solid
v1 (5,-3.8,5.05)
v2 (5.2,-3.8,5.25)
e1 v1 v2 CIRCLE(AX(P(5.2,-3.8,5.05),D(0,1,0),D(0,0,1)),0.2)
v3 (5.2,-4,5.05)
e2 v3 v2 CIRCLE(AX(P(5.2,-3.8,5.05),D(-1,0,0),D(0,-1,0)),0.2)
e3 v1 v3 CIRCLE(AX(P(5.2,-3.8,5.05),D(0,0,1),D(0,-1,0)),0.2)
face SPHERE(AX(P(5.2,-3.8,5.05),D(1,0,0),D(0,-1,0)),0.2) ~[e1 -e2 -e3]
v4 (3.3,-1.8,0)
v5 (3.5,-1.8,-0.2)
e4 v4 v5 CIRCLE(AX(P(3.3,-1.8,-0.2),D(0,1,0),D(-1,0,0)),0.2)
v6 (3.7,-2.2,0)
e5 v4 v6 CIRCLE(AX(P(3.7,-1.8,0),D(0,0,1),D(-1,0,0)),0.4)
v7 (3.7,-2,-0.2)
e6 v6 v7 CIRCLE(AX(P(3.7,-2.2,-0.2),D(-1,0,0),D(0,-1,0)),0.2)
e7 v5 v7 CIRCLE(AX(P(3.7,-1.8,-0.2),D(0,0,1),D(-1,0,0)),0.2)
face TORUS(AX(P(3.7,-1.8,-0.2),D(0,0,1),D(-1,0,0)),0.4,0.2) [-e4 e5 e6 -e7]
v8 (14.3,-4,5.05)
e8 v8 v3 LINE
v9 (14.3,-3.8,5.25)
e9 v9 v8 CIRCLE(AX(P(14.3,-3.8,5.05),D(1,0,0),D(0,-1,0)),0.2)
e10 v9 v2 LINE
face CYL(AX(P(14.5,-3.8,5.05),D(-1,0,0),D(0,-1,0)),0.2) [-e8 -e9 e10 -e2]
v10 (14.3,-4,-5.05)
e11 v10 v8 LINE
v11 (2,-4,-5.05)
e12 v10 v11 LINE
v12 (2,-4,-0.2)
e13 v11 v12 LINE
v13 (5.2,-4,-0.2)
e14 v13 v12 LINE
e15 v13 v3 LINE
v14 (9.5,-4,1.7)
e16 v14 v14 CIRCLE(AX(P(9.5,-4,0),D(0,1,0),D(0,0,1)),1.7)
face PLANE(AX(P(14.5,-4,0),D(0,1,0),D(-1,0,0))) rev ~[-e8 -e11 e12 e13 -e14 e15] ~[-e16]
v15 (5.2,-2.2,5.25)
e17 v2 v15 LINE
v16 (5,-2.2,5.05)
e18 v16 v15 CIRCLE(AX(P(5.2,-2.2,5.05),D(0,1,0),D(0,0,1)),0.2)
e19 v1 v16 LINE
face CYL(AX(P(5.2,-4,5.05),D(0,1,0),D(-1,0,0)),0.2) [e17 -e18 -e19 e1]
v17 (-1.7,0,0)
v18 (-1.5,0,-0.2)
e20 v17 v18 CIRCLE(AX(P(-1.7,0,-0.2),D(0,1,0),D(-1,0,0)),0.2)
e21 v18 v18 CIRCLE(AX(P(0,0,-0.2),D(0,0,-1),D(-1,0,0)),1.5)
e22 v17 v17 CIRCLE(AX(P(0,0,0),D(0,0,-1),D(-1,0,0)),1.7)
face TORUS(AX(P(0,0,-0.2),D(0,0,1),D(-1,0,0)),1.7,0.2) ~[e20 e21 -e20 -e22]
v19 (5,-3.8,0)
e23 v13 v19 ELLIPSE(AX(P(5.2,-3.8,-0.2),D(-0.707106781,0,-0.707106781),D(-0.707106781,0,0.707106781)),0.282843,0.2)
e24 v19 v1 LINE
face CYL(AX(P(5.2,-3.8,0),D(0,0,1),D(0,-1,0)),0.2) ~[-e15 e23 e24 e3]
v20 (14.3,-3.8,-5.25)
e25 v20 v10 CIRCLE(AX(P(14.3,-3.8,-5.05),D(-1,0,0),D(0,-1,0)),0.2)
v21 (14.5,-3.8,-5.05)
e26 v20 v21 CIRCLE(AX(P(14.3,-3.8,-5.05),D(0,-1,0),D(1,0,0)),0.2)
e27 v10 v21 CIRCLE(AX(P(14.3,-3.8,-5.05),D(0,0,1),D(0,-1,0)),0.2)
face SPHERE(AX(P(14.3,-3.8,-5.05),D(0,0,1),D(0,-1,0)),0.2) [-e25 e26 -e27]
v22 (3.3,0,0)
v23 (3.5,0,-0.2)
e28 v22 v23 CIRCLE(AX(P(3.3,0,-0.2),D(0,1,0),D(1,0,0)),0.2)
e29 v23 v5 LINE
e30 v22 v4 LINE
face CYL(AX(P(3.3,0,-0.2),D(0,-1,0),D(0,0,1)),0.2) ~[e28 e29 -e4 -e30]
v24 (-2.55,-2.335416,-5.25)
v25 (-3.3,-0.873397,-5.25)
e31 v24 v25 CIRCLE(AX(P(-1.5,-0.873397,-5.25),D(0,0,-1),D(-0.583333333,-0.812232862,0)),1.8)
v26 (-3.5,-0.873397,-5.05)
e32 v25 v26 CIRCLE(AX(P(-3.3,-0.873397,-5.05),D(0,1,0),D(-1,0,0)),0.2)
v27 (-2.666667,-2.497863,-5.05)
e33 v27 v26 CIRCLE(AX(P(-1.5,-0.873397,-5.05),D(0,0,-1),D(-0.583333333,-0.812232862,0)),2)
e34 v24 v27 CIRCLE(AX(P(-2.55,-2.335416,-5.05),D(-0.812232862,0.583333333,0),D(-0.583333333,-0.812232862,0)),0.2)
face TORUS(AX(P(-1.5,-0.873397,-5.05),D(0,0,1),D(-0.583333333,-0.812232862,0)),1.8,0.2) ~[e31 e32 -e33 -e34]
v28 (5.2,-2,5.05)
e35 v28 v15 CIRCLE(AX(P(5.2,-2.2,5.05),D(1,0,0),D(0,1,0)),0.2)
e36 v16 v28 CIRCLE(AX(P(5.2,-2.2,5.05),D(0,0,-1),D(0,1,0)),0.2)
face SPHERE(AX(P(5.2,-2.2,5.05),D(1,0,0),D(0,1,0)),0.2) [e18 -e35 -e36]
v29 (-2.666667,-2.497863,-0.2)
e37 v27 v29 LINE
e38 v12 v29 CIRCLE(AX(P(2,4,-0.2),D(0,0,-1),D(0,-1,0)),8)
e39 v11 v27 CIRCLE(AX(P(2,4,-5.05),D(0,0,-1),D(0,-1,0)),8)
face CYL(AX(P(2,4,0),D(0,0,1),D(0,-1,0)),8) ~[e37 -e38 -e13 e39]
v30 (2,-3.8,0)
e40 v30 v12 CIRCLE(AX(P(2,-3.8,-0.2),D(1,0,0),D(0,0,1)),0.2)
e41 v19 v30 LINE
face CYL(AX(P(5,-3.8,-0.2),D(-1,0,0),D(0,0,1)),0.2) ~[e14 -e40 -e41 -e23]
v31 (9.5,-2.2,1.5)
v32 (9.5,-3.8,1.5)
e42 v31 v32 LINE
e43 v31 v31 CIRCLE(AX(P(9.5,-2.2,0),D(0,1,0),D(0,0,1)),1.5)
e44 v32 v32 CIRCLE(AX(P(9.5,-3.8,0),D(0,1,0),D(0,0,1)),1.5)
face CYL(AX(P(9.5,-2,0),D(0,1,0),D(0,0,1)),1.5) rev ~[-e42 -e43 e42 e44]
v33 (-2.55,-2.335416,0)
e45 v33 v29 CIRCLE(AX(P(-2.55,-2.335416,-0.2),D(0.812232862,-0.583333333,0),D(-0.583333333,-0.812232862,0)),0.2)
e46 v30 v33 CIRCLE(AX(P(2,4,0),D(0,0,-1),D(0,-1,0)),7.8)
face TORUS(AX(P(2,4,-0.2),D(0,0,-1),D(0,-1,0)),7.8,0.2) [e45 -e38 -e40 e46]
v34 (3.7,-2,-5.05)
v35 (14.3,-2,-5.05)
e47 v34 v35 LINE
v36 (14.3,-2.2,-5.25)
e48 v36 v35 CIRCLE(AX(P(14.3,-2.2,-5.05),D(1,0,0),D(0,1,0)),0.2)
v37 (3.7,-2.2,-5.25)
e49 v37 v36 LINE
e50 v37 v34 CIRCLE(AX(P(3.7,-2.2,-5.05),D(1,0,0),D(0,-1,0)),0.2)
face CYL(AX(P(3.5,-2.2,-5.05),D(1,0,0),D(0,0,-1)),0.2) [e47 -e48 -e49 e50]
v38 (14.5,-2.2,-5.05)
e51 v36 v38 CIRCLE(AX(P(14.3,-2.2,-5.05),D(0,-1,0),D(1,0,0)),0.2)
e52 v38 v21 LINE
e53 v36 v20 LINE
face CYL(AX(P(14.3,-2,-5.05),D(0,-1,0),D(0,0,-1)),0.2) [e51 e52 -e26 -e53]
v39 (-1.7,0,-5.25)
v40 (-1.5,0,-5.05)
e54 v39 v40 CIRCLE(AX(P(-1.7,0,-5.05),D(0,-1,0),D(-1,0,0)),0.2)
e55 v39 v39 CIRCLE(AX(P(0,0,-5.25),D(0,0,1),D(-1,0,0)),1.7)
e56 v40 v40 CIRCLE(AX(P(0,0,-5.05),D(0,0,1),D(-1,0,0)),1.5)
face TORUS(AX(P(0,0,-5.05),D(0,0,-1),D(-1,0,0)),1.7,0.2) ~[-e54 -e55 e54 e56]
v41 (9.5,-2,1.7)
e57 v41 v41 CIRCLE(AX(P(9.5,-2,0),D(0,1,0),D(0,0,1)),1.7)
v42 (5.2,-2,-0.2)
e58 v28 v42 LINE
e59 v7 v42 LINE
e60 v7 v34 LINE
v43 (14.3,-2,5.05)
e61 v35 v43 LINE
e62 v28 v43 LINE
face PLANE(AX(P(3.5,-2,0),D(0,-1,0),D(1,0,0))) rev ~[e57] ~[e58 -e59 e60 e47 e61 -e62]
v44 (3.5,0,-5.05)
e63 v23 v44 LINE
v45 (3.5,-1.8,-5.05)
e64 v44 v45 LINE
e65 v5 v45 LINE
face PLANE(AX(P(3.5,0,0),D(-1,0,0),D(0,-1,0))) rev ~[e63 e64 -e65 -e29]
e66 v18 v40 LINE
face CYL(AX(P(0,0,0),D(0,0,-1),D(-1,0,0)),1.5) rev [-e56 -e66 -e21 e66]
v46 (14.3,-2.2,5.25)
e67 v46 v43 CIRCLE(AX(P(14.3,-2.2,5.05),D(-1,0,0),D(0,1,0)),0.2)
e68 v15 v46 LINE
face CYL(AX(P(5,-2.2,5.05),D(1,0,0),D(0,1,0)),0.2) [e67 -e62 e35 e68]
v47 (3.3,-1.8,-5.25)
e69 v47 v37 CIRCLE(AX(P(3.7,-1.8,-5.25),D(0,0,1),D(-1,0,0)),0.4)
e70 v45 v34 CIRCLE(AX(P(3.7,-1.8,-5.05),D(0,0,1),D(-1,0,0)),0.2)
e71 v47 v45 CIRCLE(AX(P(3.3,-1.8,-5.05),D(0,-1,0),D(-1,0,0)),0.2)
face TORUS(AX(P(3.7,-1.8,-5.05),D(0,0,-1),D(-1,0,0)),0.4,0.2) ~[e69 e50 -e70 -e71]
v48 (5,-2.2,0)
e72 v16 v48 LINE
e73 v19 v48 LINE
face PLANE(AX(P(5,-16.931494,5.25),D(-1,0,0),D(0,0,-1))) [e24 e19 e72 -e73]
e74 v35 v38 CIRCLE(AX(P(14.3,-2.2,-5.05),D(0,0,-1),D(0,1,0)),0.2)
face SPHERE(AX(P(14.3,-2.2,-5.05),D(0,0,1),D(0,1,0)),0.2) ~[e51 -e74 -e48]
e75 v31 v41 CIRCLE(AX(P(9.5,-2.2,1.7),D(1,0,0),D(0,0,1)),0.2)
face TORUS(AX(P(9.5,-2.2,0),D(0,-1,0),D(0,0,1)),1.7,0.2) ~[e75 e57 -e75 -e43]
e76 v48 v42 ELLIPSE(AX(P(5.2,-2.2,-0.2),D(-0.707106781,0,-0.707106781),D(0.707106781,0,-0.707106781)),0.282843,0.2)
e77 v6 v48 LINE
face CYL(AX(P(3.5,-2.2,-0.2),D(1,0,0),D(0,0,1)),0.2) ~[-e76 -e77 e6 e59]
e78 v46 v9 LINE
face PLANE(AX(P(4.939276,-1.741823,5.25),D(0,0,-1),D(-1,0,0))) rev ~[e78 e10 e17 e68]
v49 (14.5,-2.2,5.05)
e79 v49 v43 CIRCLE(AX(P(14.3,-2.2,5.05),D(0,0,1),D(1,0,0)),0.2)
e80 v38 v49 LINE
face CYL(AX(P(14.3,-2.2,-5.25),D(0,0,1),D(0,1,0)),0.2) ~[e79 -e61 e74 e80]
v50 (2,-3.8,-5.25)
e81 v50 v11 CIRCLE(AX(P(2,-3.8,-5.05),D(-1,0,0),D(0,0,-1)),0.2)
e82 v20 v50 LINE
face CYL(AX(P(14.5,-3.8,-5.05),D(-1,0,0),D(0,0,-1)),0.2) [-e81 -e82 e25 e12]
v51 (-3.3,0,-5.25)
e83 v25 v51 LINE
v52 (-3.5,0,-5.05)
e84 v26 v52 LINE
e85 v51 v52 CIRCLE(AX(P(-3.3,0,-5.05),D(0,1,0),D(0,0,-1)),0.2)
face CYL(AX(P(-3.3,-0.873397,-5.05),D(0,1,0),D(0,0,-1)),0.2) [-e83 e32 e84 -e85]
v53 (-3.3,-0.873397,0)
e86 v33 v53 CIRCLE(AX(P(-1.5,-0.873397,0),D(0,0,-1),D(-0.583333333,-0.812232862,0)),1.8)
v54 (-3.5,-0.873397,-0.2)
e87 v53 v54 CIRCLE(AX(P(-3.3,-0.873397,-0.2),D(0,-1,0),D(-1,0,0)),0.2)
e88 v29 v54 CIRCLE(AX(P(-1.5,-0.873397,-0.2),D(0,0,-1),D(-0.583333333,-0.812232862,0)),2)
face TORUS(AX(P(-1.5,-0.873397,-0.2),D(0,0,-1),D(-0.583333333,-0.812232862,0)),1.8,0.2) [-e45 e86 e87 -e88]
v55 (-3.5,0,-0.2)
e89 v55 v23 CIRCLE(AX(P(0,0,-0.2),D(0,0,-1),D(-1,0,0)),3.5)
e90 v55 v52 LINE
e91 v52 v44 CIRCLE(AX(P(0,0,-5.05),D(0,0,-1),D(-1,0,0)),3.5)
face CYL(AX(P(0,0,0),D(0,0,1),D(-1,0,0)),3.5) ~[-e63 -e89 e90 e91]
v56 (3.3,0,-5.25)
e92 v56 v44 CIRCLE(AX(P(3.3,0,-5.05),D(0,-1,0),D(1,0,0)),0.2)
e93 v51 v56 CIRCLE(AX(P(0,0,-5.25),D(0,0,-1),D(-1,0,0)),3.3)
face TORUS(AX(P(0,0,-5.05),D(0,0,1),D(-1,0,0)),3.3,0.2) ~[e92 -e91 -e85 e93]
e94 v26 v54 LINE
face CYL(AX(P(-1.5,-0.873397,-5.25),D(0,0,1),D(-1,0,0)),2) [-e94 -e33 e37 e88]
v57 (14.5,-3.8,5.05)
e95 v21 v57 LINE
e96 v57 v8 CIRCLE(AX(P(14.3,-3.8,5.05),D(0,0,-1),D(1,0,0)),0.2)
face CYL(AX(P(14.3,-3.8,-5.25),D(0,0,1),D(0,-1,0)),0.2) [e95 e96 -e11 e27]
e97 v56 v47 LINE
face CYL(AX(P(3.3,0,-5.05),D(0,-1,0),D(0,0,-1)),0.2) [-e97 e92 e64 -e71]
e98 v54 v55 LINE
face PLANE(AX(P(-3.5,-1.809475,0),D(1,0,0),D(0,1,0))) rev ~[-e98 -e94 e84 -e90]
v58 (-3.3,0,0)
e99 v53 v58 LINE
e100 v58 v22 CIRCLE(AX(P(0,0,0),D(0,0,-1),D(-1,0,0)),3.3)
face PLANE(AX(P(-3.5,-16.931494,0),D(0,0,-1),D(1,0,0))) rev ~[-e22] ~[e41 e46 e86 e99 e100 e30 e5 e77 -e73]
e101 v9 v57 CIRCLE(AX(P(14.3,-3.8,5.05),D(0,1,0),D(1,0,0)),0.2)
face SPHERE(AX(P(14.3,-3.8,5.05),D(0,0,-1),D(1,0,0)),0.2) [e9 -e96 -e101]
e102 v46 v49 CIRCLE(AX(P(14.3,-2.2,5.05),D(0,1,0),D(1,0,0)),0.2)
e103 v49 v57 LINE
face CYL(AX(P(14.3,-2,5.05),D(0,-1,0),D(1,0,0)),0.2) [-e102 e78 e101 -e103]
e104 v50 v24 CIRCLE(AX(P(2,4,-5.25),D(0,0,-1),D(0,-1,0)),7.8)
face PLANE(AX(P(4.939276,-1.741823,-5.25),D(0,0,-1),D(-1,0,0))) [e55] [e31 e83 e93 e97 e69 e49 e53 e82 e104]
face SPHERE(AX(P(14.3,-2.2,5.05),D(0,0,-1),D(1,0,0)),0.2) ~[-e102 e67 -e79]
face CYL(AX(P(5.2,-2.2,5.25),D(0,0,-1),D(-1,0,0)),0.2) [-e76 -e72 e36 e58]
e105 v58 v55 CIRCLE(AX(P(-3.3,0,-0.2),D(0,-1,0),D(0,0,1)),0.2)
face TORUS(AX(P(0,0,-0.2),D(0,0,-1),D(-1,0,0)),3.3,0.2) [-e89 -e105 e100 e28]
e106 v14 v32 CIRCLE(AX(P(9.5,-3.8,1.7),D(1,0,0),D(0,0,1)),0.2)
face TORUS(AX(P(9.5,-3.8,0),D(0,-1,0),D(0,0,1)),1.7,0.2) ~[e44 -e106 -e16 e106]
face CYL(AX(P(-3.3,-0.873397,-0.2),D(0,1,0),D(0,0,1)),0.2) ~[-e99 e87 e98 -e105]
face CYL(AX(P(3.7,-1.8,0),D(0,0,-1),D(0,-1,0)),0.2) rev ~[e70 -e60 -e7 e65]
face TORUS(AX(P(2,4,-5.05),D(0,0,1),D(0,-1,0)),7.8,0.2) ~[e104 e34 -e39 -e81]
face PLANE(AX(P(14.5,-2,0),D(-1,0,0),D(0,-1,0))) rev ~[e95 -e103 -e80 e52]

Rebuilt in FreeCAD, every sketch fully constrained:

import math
import FreeCAD as App
import Part
import Sketcher


def edges_at(feature, points):
    """Names of the edges that pass closest to the given points."""
    edges = feature.Shape.Edges
    near = lambda p: min(range(len(edges)), key=lambda i: edges[i].distToShape(Part.Vertex(*p))[0])
    return sorted({f"Edge{near(p) + 1}" for p in points})


def add_polygon(sketch, points):
    """Adds a closed chain of lines whose ends are joined by coincident constraints."""
    first, n = sketch.GeometryCount, len(points)
    for a, b in zip(points, points[1:] + points[:1]):
        sketch.addGeometry(Part.LineSegment(App.Vector(*a, 0), App.Vector(*b, 0)), False)
    for i in range(n):
        sketch.addConstraint(Sketcher.Constraint("Coincident", first + i, 2, first + (i + 1) % n, 1))

doc = App.newDocument("Part")
params = doc.addObject("Spreadsheet::Sheet", "Params")
for row, (alias, value) in enumerate([
    ("sketch1_diameter", "3 mm"),
    ("sketch1_radius", "8 mm"),
    ("sketch1_radius2", "3.5 mm"),
    ("sketch1_width", "11 mm"),
    ("sketch1_height", "2 mm"),
    ("pad1_length", "10.5 mm"),
    ("sketch2_width", "8.5 mm"),
    ("sketch2_height", "5.25 mm"),
    ("sketch3_diameter", "3 mm"),
    ("fillet_radius", "2 mm"),
    ("fillet2_radius", "0.2 mm"),
    ("fillet3_radius", "0.2 mm"),
], start=1):
    params.set(f"A{row}", alias)
    params.set(f"B{row}", "=" + value)
    params.setAlias(f"B{row}", alias)

body = doc.addObject("PartDesign::Body", "Body")

# Sketch on XY plane
sketch1 = body.newObject("Sketcher::SketchObject", "Sketch")
sketch1.AttachmentSupport = (doc.getObject("XY_Plane"), [""])
sketch1.MapMode = "FlatFace"
sketch1.addGeometry(Part.LineSegment(App.Vector(-3.5, 0, 0), App.Vector(-3.5, -1.809475, 0)), False)
sketch1.addGeometry(Part.ArcOfCircle(Part.Circle(App.Vector(2, 4, 0), App.Vector(0, 0, 1), 8), math.radians(-133.432537), math.radians(-90)), False)
sketch1.addGeometry(Part.LineSegment(App.Vector(2, -4, 0), App.Vector(14.5, -4, 0)), False)
sketch1.addGeometry(Part.LineSegment(App.Vector(14.5, -4, 0), App.Vector(14.5, -2, 0)), False)
sketch1.addGeometry(Part.LineSegment(App.Vector(14.5, -2, 0), App.Vector(3.5, -2, 0)), False)
sketch1.addGeometry(Part.LineSegment(App.Vector(3.5, -2, 0), App.Vector(3.5, 0, 0)), False)
sketch1.addGeometry(Part.ArcOfCircle(Part.Circle(App.Vector(0, 0, 0), App.Vector(0, 0, 1), 3.5), math.radians(0), math.radians(180)), False)
sketch1.addGeometry(Part.Circle(App.Vector(0, 0, 0), App.Vector(0, 0, 1), 1.5), False)
sketch1.addConstraint(Sketcher.Constraint("Coincident", 0, 2, 1, 1))
sketch1.addConstraint(Sketcher.Constraint("Tangent", 1, 2, 2, 1))
sketch1.addConstraint(Sketcher.Constraint("Coincident", 2, 2, 3, 1))
sketch1.addConstraint(Sketcher.Constraint("Coincident", 3, 2, 4, 1))
sketch1.addConstraint(Sketcher.Constraint("Coincident", 4, 2, 5, 1))
sketch1.addConstraint(Sketcher.Constraint("Tangent", 5, 2, 6, 1))
sketch1.addConstraint(Sketcher.Constraint("Tangent", 6, 2, 0, 1))
sketch1.addConstraint(Sketcher.Constraint("Vertical", 0))
sketch1.addConstraint(Sketcher.Constraint("Horizontal", 2))
sketch1.addConstraint(Sketcher.Constraint("Vertical", 3))
sketch1.addConstraint(Sketcher.Constraint("Horizontal", 4))
sketch1.addConstraint(Sketcher.Constraint("Vertical", 5))
sketch1.addConstraint(Sketcher.Constraint("Coincident", 6, 3, -1, 1))
sketch1.addConstraint(Sketcher.Constraint("Coincident", 7, 3, -1, 1))
sketch1.addConstraint(Sketcher.Constraint("Equal", 3, 5))
sketch1.addConstraint(Sketcher.Constraint("Diameter", 7, 3.0))
sketch1.addConstraint(Sketcher.Constraint("Radius", 1, 8.0))
sketch1.addConstraint(Sketcher.Constraint("Radius", 6, 3.5))
sketch1.addConstraint(Sketcher.Constraint("DistanceX", 4, 2, 4, 1, 11.0))
sketch1.addConstraint(Sketcher.Constraint("DistanceY", 3, 1, 3, 2, 2.0))
sketch1.addConstraint(Sketcher.Constraint("DistanceX", 2, 1, 2, 2, 12.5))
sketch1.setExpression("Constraints[15]", "Params.sketch1_diameter")
sketch1.setExpression("Constraints[16]", "Params.sketch1_radius")
sketch1.setExpression("Constraints[17]", "Params.sketch1_radius2")
sketch1.setExpression("Constraints[18]", "Params.sketch1_width")
sketch1.setExpression("Constraints[19]", "Params.sketch1_height")
pad1 = body.newObject("PartDesign::Pad", "Pad")
pad1.Profile = sketch1
pad1.setExpression("Length", "Params.pad1_length")
pad1.Midplane = True

# Sketch on XZ plane
sketch2 = body.newObject("Sketcher::SketchObject", "Sketch001")
sketch2.AttachmentSupport = (doc.getObject("XZ_Plane"), [""])
sketch2.MapMode = "FlatFace"
add_polygon(sketch2, [(-3.5, 0), (-3.5, 5.25), (5, 5.25), (5, 0)])  # lines 0-3
sketch2.addConstraint(Sketcher.Constraint("Vertical", 0))
sketch2.addConstraint(Sketcher.Constraint("Horizontal", 1))
sketch2.addConstraint(Sketcher.Constraint("Vertical", 2))
sketch2.addConstraint(Sketcher.Constraint("Horizontal", 3))
sketch2.addConstraint(Sketcher.Constraint("PointOnObject", 2, 2, -1))
sketch2.addConstraint(Sketcher.Constraint("DistanceX", 1, 1, 1, 2, 8.5))
sketch2.addConstraint(Sketcher.Constraint("DistanceX", -1, 1, 1, 2, 5.0))
sketch2.addConstraint(Sketcher.Constraint("DistanceY", 0, 1, 0, 2, 5.25))
sketch2.setExpression("Constraints[9]", "Params.sketch2_width")
sketch2.setExpression("Constraints[11]", "Params.sketch2_height")
pocket1 = body.newObject("PartDesign::Pocket", "Pocket")
pocket1.Profile = sketch2
pocket1.Type = "ThroughAll"
pocket1.Midplane = True

# Sketch on XZ plane
sketch3 = body.newObject("Sketcher::SketchObject", "Sketch002")
sketch3.AttachmentSupport = (doc.getObject("XZ_Plane"), [""])
sketch3.MapMode = "FlatFace"
sketch3.AttachmentOffset = App.Placement(App.Vector(0, 0, 2), App.Rotation())
sketch3.addGeometry(Part.Circle(App.Vector(9.5, 0, 0), App.Vector(0, 0, 1), 1.5), False)
sketch3.addConstraint(Sketcher.Constraint("PointOnObject", 0, 3, -1))
sketch3.addConstraint(Sketcher.Constraint("Diameter", 0, 3.0))
sketch3.addConstraint(Sketcher.Constraint("DistanceX", -1, 1, 0, 3, 9.5))
sketch3.setExpression("Constraints[1]", "Params.sketch3_diameter")
pocket2 = body.newObject("PartDesign::Pocket", "Pocket001")
pocket2.Profile = sketch3
pocket2.Type = "UpToFirst"
pocket2.Reversed = True
doc.recompute()

fillet = body.newObject("PartDesign::Fillet", "Fillet")
fillet.Base = (pocket2, edges_at(pocket2, [(-3.5, -1.809, -2.625)]))
fillet.setExpression("Radius", "Params.fillet_radius")
doc.recompute()

fillet2 = body.newObject("PartDesign::Fillet", "Fillet001")
fillet2.Base = (fillet, edges_at(fillet, [
    (14.5, -2, 0),
    (14.5, -4, 0),
    (14.5, -3, 5.25),
    (1.5, 0, -5.25),
    (9.75, -2, 5.25),
    (3.5, -2, -2.625),
    (5, -2, 2.625),
    (9.75, -4, 5.25),
    (5, -4, 2.625),
    (3.5, -4, 0),
    (-0.451, -3.615, 0),
    (0, 3.5, 0),
    (3.5, -1, 0),
    (4.25, -2, 0),
    (1.5, 0, 0),
    (5, -3, 5.25),
    (-0.451, -3.615, -5.25),
    (-3.28, -1.786, -5.25),
    (-3.5, -0.437, 0),
    (-3.28, -1.786, 0),
    (3.5, -1, -5.25),
    (9, -2, -5.25),
    (14.5, -3, -5.25),
    (8.25, -4, -5.25),
    (-3.5, -0.437, -5.25),
    (0, 3.5, -5.25),
]))
fillet2.setExpression("Radius", "Params.fillet2_radius")
doc.recompute()

fillet3 = body.newObject("PartDesign::Fillet", "Fillet002")
fillet3.Base = (fillet2, edges_at(fillet2, [(9.5, -2, -1.5), (9.5, -4, -1.5)]))
fillet3.setExpression("Radius", "Params.fillet3_radius")

doc.recompute()
